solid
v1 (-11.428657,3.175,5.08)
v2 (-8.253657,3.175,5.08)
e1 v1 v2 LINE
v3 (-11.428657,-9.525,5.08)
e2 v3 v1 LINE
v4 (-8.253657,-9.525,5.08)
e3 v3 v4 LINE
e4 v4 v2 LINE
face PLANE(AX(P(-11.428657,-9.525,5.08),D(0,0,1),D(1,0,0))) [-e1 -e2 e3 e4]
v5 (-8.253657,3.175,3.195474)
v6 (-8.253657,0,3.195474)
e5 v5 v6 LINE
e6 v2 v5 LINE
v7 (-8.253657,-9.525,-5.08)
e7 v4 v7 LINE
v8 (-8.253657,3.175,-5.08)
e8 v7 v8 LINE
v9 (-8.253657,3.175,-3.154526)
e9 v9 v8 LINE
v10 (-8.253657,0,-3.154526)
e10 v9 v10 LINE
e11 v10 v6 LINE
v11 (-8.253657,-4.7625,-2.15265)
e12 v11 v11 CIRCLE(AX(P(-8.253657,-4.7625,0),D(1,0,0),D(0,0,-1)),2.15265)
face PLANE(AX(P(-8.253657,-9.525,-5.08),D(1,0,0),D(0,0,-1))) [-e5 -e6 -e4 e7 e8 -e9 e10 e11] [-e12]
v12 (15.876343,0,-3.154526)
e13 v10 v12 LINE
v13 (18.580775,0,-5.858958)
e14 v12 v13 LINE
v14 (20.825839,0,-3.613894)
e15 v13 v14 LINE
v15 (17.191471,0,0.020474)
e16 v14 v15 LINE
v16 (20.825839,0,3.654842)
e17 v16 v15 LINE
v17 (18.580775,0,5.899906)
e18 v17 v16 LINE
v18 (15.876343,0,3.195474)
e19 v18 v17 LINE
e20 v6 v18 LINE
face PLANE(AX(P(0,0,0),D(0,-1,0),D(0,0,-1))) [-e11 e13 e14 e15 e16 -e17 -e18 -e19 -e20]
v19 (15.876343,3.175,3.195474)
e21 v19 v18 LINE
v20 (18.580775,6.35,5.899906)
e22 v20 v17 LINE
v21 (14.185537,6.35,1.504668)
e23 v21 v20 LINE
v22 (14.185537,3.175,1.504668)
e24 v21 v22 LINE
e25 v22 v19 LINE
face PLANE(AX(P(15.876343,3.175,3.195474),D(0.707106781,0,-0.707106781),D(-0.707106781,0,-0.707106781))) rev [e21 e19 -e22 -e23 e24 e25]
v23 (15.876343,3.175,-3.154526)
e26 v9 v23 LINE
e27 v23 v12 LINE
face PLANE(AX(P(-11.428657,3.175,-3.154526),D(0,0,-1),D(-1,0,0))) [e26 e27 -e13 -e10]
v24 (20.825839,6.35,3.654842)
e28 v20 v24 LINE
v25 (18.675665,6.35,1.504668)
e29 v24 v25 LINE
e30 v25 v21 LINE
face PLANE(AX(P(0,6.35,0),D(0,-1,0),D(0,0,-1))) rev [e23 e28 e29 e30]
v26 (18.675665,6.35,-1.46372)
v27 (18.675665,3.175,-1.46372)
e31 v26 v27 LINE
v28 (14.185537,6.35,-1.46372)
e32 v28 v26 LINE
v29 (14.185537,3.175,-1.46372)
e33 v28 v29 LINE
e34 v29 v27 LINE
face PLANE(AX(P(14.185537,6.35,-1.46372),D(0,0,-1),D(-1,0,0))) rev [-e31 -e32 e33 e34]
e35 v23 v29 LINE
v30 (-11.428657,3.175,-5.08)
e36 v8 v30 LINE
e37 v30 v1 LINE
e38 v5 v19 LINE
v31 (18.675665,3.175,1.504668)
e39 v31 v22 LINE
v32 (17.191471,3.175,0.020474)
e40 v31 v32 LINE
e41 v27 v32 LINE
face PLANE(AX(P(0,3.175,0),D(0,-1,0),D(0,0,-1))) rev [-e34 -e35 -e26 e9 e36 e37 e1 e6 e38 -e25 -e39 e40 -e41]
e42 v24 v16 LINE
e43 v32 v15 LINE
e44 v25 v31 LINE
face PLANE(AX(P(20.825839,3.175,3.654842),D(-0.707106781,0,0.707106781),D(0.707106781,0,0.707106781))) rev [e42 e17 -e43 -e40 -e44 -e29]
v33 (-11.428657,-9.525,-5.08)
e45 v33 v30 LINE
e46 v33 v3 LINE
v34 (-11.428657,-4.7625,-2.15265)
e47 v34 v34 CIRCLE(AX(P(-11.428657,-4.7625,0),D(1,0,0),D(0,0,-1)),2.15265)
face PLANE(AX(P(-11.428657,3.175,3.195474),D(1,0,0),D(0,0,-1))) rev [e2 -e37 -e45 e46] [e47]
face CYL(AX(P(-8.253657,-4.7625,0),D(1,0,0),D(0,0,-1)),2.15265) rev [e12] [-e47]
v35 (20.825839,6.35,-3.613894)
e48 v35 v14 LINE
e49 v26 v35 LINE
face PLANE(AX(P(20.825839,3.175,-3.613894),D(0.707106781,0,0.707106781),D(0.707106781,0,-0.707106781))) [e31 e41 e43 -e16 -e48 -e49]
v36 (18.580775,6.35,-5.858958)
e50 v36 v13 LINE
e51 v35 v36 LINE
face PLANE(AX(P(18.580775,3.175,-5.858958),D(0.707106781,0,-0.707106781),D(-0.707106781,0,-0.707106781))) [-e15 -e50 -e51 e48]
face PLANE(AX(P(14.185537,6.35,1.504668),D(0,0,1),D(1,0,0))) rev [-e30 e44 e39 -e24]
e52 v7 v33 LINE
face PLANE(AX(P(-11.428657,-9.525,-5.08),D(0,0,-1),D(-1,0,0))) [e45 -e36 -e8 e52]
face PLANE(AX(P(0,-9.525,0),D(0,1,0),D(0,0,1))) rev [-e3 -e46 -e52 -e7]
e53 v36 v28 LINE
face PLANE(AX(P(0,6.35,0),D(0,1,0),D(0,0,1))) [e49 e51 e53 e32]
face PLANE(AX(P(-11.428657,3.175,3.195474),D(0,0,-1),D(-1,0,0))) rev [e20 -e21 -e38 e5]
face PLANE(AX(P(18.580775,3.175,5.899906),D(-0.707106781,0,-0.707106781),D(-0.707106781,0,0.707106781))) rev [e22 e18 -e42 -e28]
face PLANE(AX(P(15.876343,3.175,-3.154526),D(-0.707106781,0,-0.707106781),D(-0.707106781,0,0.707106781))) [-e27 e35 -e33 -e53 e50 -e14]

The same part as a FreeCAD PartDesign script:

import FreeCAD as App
import Part
import Sketcher
Q = App.Units.Quantity

doc = App.newDocument("Part")
body = doc.addObject("PartDesign::Body", "Body")

# Sketch on XZ plane
sketch1 = body.newObject("Sketcher::SketchObject", "Sketch")
sketch1.AttachmentSupport = (doc.getObject("XZ_Plane"), [""])
sketch1.MapMode = "FlatFace"
sketch1.addGeometry([
    Part.LineSegment(App.Vector(20.825839, 3.654842, 0), App.Vector(17.191471, 0.020474, 0)),  # 0
    Part.LineSegment(App.Vector(17.191471, 0.020474, 0), App.Vector(-11.428657, 0.020474, 0)),  # 1
    Part.LineSegment(App.Vector(-11.428657, 0.020474, 0), App.Vector(-11.428657, 3.195474, 0)),  # 2
    Part.LineSegment(App.Vector(-11.428657, 3.195474, 0), App.Vector(15.876343, 3.195474, 0)),  # 3
    Part.LineSegment(App.Vector(15.876343, 3.195474, 0), App.Vector(18.580775, 5.899906, 0)),  # 4
    Part.LineSegment(App.Vector(18.580775, 5.899906, 0), App.Vector(20.825839, 3.654842, 0)),  # 5
], False)
sketch1.addConstraint([
    Sketcher.Constraint("Coincident", 0, 2, 1, 1),
    Sketcher.Constraint("Coincident", 1, 2, 2, 1),
    Sketcher.Constraint("Coincident", 2, 2, 3, 1),
    Sketcher.Constraint("Coincident", 3, 2, 4, 1),
    Sketcher.Constraint("Coincident", 4, 2, 5, 1),
    Sketcher.Constraint("Coincident", 5, 2, 0, 1),
    Sketcher.Constraint("Horizontal", 1),
    Sketcher.Constraint("Vertical", 2),
    Sketcher.Constraint("Horizontal", 3),
    Sketcher.Constraint("Parallel", 0, 4),
    Sketcher.Constraint("Perpendicular", 4, 5),
    Sketcher.Constraint("Angle", 0, Q("-135 deg")),
    Sketcher.Constraint("DistanceX", 3, 1, 3, 2, Q("1.075 in")),
    Sketcher.Constraint("DistanceY", 2, 1, 2, 2, Q("0.125 in")),
    Sketcher.Constraint("Distance", 5, Q("0.125 in")),
    Sketcher.Constraint("DistanceX", -1, 1, 0, 2, 17.191471),
    Sketcher.Constraint("DistanceX", -1, 1, 5, 2, 20.825839),
    Sketcher.Constraint("DistanceY", -1, 1, 0, 2, 0.020474),
])
pad1 = body.newObject("PartDesign::Pad", "Pad")
pad1.Profile = sketch1
pad1.Length = Q("0.125 in")
pad1.Reversed = True
doc.recompute()

datumplane = body.newObject("PartDesign::Plane", "DatumPlane")
datumplane.AttachmentSupport = (doc.getObject("XY_Plane"), [""])
datumplane.MapMode = "FlatFace"
datumplane.AttachmentOffset = App.Placement(App.Vector(0, 0, 0.020474), App.Rotation())
mirrored = body.newObject("PartDesign::Mirrored", "Mirrored")
mirrored.Originals = [pad1]
mirrored.MirrorPlane = (datumplane, [""])
body.Tip = mirrored

# Sketch on XZ plane
sketch2 = body.newObject("Sketcher::SketchObject", "Sketch001")
sketch2.AttachmentSupport = (doc.getObject("XZ_Plane"), [""])
sketch2.MapMode = "FlatFace"
sketch2.AttachmentOffset = App.Placement(App.Vector(0, 0, -0.125 * 25.4), App.Rotation())
sketch2.addGeometry([
    Part.LineSegment(App.Vector(14.185537, 1.504668, 0), App.Vector(18.580775, 5.899906, 0)),  # 0
    Part.LineSegment(App.Vector(18.580775, 5.899906, 0), App.Vector(20.825839, 3.654842, 0)),  # 1
    Part.LineSegment(App.Vector(20.825839, 3.654842, 0), App.Vector(18.675665, 1.504668, 0)),  # 2
    Part.LineSegment(App.Vector(18.675665, 1.504668, 0), App.Vector(14.185537, 1.504668, 0)),  # 3
    Part.LineSegment(App.Vector(18.675665, -1.46372, 0), App.Vector(20.825839, -3.613894, 0)),  # 4
    Part.LineSegment(App.Vector(20.825839, -3.613894, 0), App.Vector(18.580775, -5.858958, 0)),  # 5
    Part.LineSegment(App.Vector(18.580775, -5.858958, 0), App.Vector(14.185537, -1.46372, 0)),  # 6
    Part.LineSegment(App.Vector(14.185537, -1.46372, 0), App.Vector(18.675665, -1.46372, 0)),  # 7
], False)
sketch2.addConstraint([
    Sketcher.Constraint("Coincident", 0, 2, 1, 1),
    Sketcher.Constraint("Coincident", 1, 2, 2, 1),
    Sketcher.Constraint("Coincident", 2, 2, 3, 1),
    Sketcher.Constraint("Coincident", 3, 2, 0, 1),
    Sketcher.Constraint("Coincident", 4, 2, 5, 1),
    Sketcher.Constraint("Coincident", 5, 2, 6, 1),
    Sketcher.Constraint("Coincident", 6, 2, 7, 1),
    Sketcher.Constraint("Coincident", 7, 2, 4, 1),
    Sketcher.Constraint("Horizontal", 3),
    Sketcher.Constraint("Horizontal", 7),
    Sketcher.Constraint("Perpendicular", 0, 1),
    Sketcher.Constraint("Perpendicular", 1, 2),
    Sketcher.Constraint("Perpendicular", 2, 4),
    Sketcher.Constraint("Perpendicular", 4, 5),
    Sketcher.Constraint("Perpendicular", 5, 6),
    Sketcher.Constraint("Vertical", 1, 2, 4, 2),
    Sketcher.Constraint("Vertical", 0, 2, 5, 2),
    Sketcher.Constraint("Vertical", 3, 2, 6, 2),
    Sketcher.Constraint("Vertical", 2, 2, 7, 2),
    Sketcher.Constraint("Distance", 1, Q("0.125 in")),
    Sketcher.Constraint("DistanceY", 4, 2, 0, 2, 9.5138),
    Sketcher.Constraint("DistanceX", -1, 1, 1, 2, 20.825839),
    Sketcher.Constraint("DistanceY", 5, 2, -1, 1, 5.858958),
    Sketcher.Constraint("DistanceY", 6, 2, -1, 1, 1.46372),
])
pad2 = body.newObject("PartDesign::Pad", "Pad001")
pad2.Profile = sketch2
pad2.Length = Q("0.125 in")
pad2.Reversed = True

# Sketch on XZ plane
sketch3 = body.newObject("Sketcher::SketchObject", "Sketch002")
sketch3.AttachmentSupport = (doc.getObject("XZ_Plane"), [""])
sketch3.MapMode = "FlatFace"
sketch3.AttachmentOffset = App.Placement(App.Vector(0, 0, -0.125 * 25.4), App.Rotation())
sketch3.addGeometry([
    Part.LineSegment(App.Vector(-11.428657, -5.08, 0), App.Vector(-11.428657, 5.08, 0)),
    Part.LineSegment(App.Vector(-11.428657, 5.08, 0), App.Vector(-8.253657, 5.08, 0)),
    Part.LineSegment(App.Vector(-8.253657, 5.08, 0), App.Vector(-8.253657, -5.08, 0)),
    Part.LineSegment(App.Vector(-8.253657, -5.08, 0), App.Vector(-11.428657, -5.08, 0)),
], False)
sketch3.addConstraint([
    Sketcher.Constraint("Coincident", 0, 2, 1, 1),
    Sketcher.Constraint("Coincident", 1, 2, 2, 1),
    Sketcher.Constraint("Coincident", 2, 2, 3, 1),
    Sketcher.Constraint("Coincident", 3, 2, 0, 1),
    Sketcher.Constraint("Vertical", 0),
    Sketcher.Constraint("Horizontal", 1),
    Sketcher.Constraint("Vertical", 2),
    Sketcher.Constraint("Horizontal", 3),
    Sketcher.Constraint("DistanceY", 0, 1, 0, 2, Q("0.4 in")),
    Sketcher.Constraint("DistanceY", -1, 1, 0, 2, Q("0.2 in")),
    Sketcher.Constraint("DistanceX", 1, 1, 1, 2, Q("0.125 in")),
    Sketcher.Constraint("DistanceX", 0, 2, -1, 1, 11.428657),
])
pad3 = body.newObject("PartDesign::Pad", "Pad002")
pad3.Profile = sketch3
pad3.Length = Q("0.5 in")

# Sketch on YZ plane
sketch4 = body.newObject("Sketcher::SketchObject", "Sketch003")
sketch4.AttachmentSupport = (doc.getObject("YZ_Plane"), [""])
sketch4.MapMode = "FlatFace"
sketch4.AttachmentOffset = App.Placement(App.Vector(0, 0, -8.253657), App.Rotation())
sketch4.addGeometry(Part.Circle(App.Vector(-4.7625, 0, 0), App.Vector(0, 0, 1), 2.15265), False)
sketch4.addConstraint([
    Sketcher.Constraint("PointOnObject", 0, 3, -1),
    Sketcher.Constraint("Diameter", 0, Q("0.1695 in")),
    Sketcher.Constraint("DistanceX", 0, 3, -1, 1, Q("0.1875 in")),
])
doc.recompute()
hole = body.newObject("PartDesign::Hole", "Hole")
hole.Profile = sketch4
hole.ThreadType = "None"
hole.Diameter = Q("0.1695 in")
hole.DepthType = "ThroughAll"

doc.recompute()
